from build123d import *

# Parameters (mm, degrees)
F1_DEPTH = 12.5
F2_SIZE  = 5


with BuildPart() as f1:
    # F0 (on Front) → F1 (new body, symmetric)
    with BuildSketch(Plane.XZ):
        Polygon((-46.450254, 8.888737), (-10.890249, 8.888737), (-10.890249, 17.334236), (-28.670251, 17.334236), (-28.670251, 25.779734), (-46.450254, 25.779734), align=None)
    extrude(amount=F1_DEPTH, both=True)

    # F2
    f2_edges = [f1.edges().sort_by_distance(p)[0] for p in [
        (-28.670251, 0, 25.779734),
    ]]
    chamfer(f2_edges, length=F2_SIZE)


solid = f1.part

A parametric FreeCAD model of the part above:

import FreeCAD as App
import Part
import Sketcher
Q = App.Units.Quantity


def edges_at(feature, points):
    """Names of the edges that pass closest to the given points."""
    edges = feature.Shape.Edges
    near = lambda p: min(range(len(edges)), key=lambda i: edges[i].distToShape(Part.Vertex(*p))[0])
    return sorted({f"Edge{near(p) + 1}" for p in points})

doc = App.newDocument("Part")
body = doc.addObject("PartDesign::Body", "Body")

# Sketch on XZ plane
sketch1 = body.newObject("Sketcher::SketchObject", "Sketch")
sketch1.AttachmentSupport = (doc.getObject("XZ_Plane"), [""])
sketch1.MapMode = "FlatFace"
sketch1.addGeometry(Part.LineSegment(App.Vector(-46.450254, 8.888737, 0), App.Vector(-10.890249, 8.888737, 0)), False)
sketch1.addGeometry(Part.LineSegment(App.Vector(-10.890249, 8.888737, 0), App.Vector(-10.890249, 17.334236, 0)), False)
sketch1.addGeometry(Part.LineSegment(App.Vector(-10.890249, 17.334236, 0), App.Vector(-28.670251, 17.334236, 0)), False)
sketch1.addGeometry(Part.LineSegment(App.Vector(-28.670251, 17.334236, 0), App.Vector(-28.670251, 25.779734, 0)), False)
sketch1.addGeometry(Part.LineSegment(App.Vector(-28.670251, 25.779734, 0), App.Vector(-46.450254, 25.779734, 0)), False)
sketch1.addGeometry(Part.LineSegment(App.Vector(-46.450254, 25.779734, 0), App.Vector(-46.450254, 8.888737, 0)), False)
sketch1.addConstraint(Sketcher.Constraint("Coincident", 0, 2, 1, 1))
sketch1.addConstraint(Sketcher.Constraint("Coincident", 1, 2, 2, 1))
sketch1.addConstraint(Sketcher.Constraint("Coincident", 2, 2, 3, 1))
sketch1.addConstraint(Sketcher.Constraint("Coincident", 3, 2, 4, 1))
sketch1.addConstraint(Sketcher.Constraint("Coincident", 4, 2, 5, 1))
sketch1.addConstraint(Sketcher.Constraint("Coincident", 5, 2, 0, 1))
sketch1.addConstraint(Sketcher.Constraint("Horizontal", 0))
sketch1.addConstraint(Sketcher.Constraint("Vertical", 1))
sketch1.addConstraint(Sketcher.Constraint("Horizontal", 2))
sketch1.addConstraint(Sketcher.Constraint("Vertical", 3))
sketch1.addConstraint(Sketcher.Constraint("Horizontal", 4))
sketch1.addConstraint(Sketcher.Constraint("Vertical", 5))
sketch1.addConstraint(Sketcher.Constraint("Equal", 2, 4))
sketch1.addConstraint(Sketcher.Constraint("Equal", 1, 3))
sketch1.addConstraint(Sketcher.Constraint("DistanceX", 0, 1, 0, 2, Q("1.4000002 in")))
sketch1.addConstraint(Sketcher.Constraint("DistanceY", 5, 2, 5, 1, Q("0.6649999 in")))
sketch1.addConstraint(Sketcher.Constraint("DistanceX", 0, 2, -1, 1, 10.890249))
sketch1.addConstraint(Sketcher.Constraint("DistanceY", -1, 1, 0, 2, 8.888737))
pad1 = body.newObject("PartDesign::Pad", "Pad")
pad1.Profile = sketch1
pad1.Length = 25
pad1.Midplane = True
doc.recompute()

chamfer = body.newObject("PartDesign::Chamfer", "Chamfer")
chamfer.Base = (pad1, edges_at(pad1, [(-28.67, 0, 25.78)]))
chamfer.Size = 5

doc.recompute()
